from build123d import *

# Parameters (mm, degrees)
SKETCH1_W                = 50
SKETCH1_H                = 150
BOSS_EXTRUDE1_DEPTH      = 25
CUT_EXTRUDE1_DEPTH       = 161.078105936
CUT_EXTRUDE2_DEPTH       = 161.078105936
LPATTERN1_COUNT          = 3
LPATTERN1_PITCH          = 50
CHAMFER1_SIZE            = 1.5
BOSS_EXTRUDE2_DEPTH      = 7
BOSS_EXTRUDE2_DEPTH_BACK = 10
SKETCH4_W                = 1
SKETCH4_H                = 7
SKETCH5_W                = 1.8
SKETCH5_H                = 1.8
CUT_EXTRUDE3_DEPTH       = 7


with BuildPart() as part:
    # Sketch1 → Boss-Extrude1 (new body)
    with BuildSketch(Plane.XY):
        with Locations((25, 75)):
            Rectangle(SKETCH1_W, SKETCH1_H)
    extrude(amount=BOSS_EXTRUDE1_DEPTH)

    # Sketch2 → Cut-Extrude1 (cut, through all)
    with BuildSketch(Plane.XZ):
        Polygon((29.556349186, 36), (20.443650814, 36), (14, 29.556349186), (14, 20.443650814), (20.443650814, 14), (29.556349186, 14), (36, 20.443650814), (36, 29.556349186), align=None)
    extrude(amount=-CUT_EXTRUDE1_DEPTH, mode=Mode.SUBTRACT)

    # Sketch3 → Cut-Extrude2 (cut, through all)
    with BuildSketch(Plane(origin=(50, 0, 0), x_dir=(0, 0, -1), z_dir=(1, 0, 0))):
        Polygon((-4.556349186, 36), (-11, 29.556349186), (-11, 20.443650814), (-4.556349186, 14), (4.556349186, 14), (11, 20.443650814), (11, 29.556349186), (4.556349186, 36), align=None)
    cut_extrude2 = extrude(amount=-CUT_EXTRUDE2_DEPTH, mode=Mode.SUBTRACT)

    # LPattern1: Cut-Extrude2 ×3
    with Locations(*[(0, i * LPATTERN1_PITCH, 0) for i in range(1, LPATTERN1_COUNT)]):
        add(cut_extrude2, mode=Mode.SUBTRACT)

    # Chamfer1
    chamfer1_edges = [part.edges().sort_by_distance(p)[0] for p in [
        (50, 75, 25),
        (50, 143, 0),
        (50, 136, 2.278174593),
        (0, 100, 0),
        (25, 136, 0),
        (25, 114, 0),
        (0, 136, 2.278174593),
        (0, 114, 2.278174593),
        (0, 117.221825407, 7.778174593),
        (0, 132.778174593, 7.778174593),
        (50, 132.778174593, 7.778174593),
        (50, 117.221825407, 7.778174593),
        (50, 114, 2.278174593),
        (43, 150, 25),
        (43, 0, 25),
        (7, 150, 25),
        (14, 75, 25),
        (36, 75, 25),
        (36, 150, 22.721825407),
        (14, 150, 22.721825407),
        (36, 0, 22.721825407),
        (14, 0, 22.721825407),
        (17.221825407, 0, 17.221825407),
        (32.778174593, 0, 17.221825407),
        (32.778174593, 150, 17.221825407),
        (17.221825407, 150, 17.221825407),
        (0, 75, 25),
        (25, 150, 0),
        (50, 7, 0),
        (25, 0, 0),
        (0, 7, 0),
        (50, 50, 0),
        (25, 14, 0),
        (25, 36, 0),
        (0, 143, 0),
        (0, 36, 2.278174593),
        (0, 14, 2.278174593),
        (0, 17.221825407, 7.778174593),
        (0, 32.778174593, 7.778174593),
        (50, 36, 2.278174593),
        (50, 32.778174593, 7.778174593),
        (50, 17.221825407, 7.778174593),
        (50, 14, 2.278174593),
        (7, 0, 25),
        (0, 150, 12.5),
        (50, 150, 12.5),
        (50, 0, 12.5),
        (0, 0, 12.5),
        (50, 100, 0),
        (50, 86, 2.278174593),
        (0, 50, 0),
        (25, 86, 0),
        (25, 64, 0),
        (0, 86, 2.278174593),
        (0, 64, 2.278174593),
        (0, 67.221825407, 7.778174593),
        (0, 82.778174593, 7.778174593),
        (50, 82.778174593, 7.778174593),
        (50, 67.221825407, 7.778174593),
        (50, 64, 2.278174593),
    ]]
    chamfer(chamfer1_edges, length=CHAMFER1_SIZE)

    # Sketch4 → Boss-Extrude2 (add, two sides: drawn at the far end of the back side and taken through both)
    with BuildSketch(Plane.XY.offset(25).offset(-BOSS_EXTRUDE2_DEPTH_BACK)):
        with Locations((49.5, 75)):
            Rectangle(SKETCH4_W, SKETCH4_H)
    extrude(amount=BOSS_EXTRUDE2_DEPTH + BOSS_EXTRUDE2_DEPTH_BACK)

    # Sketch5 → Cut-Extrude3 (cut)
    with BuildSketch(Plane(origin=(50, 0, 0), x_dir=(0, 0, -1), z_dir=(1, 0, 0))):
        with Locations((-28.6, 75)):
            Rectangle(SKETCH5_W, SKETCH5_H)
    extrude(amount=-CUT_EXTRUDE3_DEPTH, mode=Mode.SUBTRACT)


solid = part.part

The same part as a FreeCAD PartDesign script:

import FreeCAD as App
import Part
import Sketcher
from FreeCAD import Vector
Q = App.Units.Quantity


def edges_at(feature, points):
    """Names of the edges that pass closest to the given points."""
    edges = feature.Shape.Edges
    near = lambda p: min(range(len(edges)), key=lambda i: edges[i].distToShape(Part.Vertex(*p))[0])
    return sorted({f"Edge{near(p) + 1}" for p in points})

doc = App.newDocument("Part")
body = doc.addObject("PartDesign::Body", "Body")

# Sketch on XY plane
sketch1 = body.newObject("Sketcher::SketchObject", "Sketch")
sketch1.AttachmentSupport = (doc.getObject("XY_Plane"), [""])
sketch1.MapMode = "FlatFace"
sketch1.addGeometry(Part.LineSegment(Vector(0, 150, 0), Vector(0, 0, 0)), False)
sketch1.addGeometry(Part.LineSegment(Vector(0, 0, 0), Vector(50, 0, 0)), False)
sketch1.addGeometry(Part.LineSegment(Vector(50, 0, 0), Vector(50, 150, 0)), False)
sketch1.addGeometry(Part.LineSegment(Vector(50, 150, 0), Vector(0, 150, 0)), False)
sketch1.addConstraint(Sketcher.Constraint("Coincident", 0, 2, 1, 1))
sketch1.addConstraint(Sketcher.Constraint("Coincident", 1, 2, 2, 1))
sketch1.addConstraint(Sketcher.Constraint("Coincident", 2, 2, 3, 1))
sketch1.addConstraint(Sketcher.Constraint("Coincident", 3, 2, 0, 1))
sketch1.addConstraint(Sketcher.Constraint("Vertical", 0))
sketch1.addConstraint(Sketcher.Constraint("Horizontal", 1))
sketch1.addConstraint(Sketcher.Constraint("Vertical", 2))
sketch1.addConstraint(Sketcher.Constraint("Horizontal", 3))
sketch1.addConstraint(Sketcher.Constraint("Coincident", 0, 2, -1, 1))
sketch1.addConstraint(Sketcher.Constraint("DistanceX", 1, 1, 1, 2, Q("50 mm")))
sketch1.addConstraint(Sketcher.Constraint("DistanceY", 0, 2, 0, 1, Q("150 mm")))
pad1 = body.newObject("PartDesign::Pad", "Pad")
pad1.Profile = sketch1
pad1.Length = 25

# Sketch on XZ plane
sketch2 = body.newObject("Sketcher::SketchObject", "Sketch001")
sketch2.AttachmentSupport = (doc.getObject("XZ_Plane"), [""])
sketch2.MapMode = "FlatFace"
sketch2.addGeometry(Part.LineSegment(Vector(30, 36, 0), Vector(20, 36, 0)), False)
sketch2.addGeometry(Part.LineSegment(Vector(20, 36, 0), Vector(14, 30, 0)), False)
sketch2.addGeometry(Part.LineSegment(Vector(14, 30, 0), Vector(14, 20, 0)), False)
sketch2.addGeometry(Part.LineSegment(Vector(14, 20, 0), Vector(20, 14, 0)), False)
sketch2.addGeometry(Part.LineSegment(Vector(20, 14, 0), Vector(30, 14, 0)), False)
sketch2.addGeometry(Part.LineSegment(Vector(30, 14, 0), Vector(36, 20, 0)), False)
sketch2.addGeometry(Part.LineSegment(Vector(36, 20, 0), Vector(36, 30, 0)), False)
sketch2.addGeometry(Part.LineSegment(Vector(36, 30, 0), Vector(30, 36, 0)), False)
sketch2.addConstraint(Sketcher.Constraint("Coincident", 0, 2, 1, 1))
sketch2.addConstraint(Sketcher.Constraint("Coincident", 1, 2, 2, 1))
sketch2.addConstraint(Sketcher.Constraint("Coincident", 2, 2, 3, 1))
sketch2.addConstraint(Sketcher.Constraint("Coincident", 3, 2, 4, 1))
sketch2.addConstraint(Sketcher.Constraint("Coincident", 4, 2, 5, 1))
sketch2.addConstraint(Sketcher.Constraint("Coincident", 5, 2, 6, 1))
sketch2.addConstraint(Sketcher.Constraint("Coincident", 6, 2, 7, 1))
sketch2.addConstraint(Sketcher.Constraint("Coincident", 7, 2, 0, 1))
sketch2.addConstraint(Sketcher.Constraint("Horizontal", 0))
sketch2.addConstraint(Sketcher.Constraint("Vertical", 2))
sketch2.addConstraint(Sketcher.Constraint("Horizontal", 4))
sketch2.addConstraint(Sketcher.Constraint("Vertical", 6))
sketch2.addConstraint(Sketcher.Constraint("Perpendicular", 1, 3))
sketch2.addConstraint(Sketcher.Constraint("Perpendicular", 3, 5))
sketch2.addConstraint(Sketcher.Constraint("Perpendicular", 5, 7))
sketch2.addConstraint(Sketcher.Constraint("Horizontal", 2, 2, 5, 2))
sketch2.addConstraint(Sketcher.Constraint("Horizontal", 1, 2, 6, 2))
sketch2.addConstraint(Sketcher.Constraint("Vertical", 0, 2, 3, 2))
sketch2.addConstraint(Sketcher.Constraint("Vertical", 4, 2, 7, 2))
sketch2.addConstraint(Sketcher.Constraint("Equal", 4, 2))
sketch2.addConstraint(Sketcher.Constraint("DistanceY", -1, 1, 0, 2, Q("36 mm")))
sketch2.addConstraint(Sketcher.Constraint("DistanceX", -1, 1, 1, 2, Q("14 mm")))
sketch2.addConstraint(Sketcher.Constraint("DistanceY", -1, 1, 3, 2, Q("14 mm")))
sketch2.addConstraint(Sketcher.Constraint("DistanceX", 0, 2, 0, 1, Q("9.112698 mm")))
pocket1 = body.newObject("PartDesign::Pocket", "Pocket")
pocket1.Profile = sketch2
pocket1.Type = "ThroughAll"

# Sketch on YZ plane
sketch3 = body.newObject("Sketcher::SketchObject", "Sketch002")
sketch3.AttachmentSupport = (doc.getObject("YZ_Plane"), [""])
sketch3.MapMode = "FlatFace"
sketch3.AttachmentOffset = App.Placement(Vector(0, 0, 50), App.Rotation())
sketch3.addGeometry(Part.LineSegment(Vector(36, 5, 0), Vector(30, 11, 0)), False)
sketch3.addGeometry(Part.LineSegment(Vector(30, 11, 0), Vector(20, 11, 0)), False)
sketch3.addGeometry(Part.LineSegment(Vector(20, 11, 0), Vector(14, 5, 0)), False)
sketch3.addGeometry(Part.LineSegment(Vector(14, 5, 0), Vector(14, -5, 0)), False)
sketch3.addGeometry(Part.LineSegment(Vector(14, -5, 0), Vector(20, -11, 0)), False)
sketch3.addGeometry(Part.LineSegment(Vector(20, -11, 0), Vector(30, -11, 0)), False)
sketch3.addGeometry(Part.LineSegment(Vector(30, -11, 0), Vector(36, -5, 0)), False)
sketch3.addGeometry(Part.LineSegment(Vector(36, -5, 0), Vector(36, 5, 0)), False)
sketch3.addConstraint(Sketcher.Constraint("Coincident", 0, 2, 1, 1))
sketch3.addConstraint(Sketcher.Constraint("Coincident", 1, 2, 2, 1))
sketch3.addConstraint(Sketcher.Constraint("Coincident", 2, 2, 3, 1))
sketch3.addConstraint(Sketcher.Constraint("Coincident", 3, 2, 4, 1))
sketch3.addConstraint(Sketcher.Constraint("Coincident", 4, 2, 5, 1))
sketch3.addConstraint(Sketcher.Constraint("Coincident", 5, 2, 6, 1))
sketch3.addConstraint(Sketcher.Constraint("Coincident", 6, 2, 7, 1))
sketch3.addConstraint(Sketcher.Constraint("Coincident", 7, 2, 0, 1))
sketch3.addConstraint(Sketcher.Constraint("Horizontal", 1))
sketch3.addConstraint(Sketcher.Constraint("Vertical", 3))
sketch3.addConstraint(Sketcher.Constraint("Horizontal", 5))
sketch3.addConstraint(Sketcher.Constraint("Vertical", 7))
sketch3.addConstraint(Sketcher.Constraint("Symmetric", 1, 2, 4, 2, -1))
sketch3.addConstraint(Sketcher.Constraint("Perpendicular", 0, 2))
sketch3.addConstraint(Sketcher.Constraint("Perpendicular", 2, 4))
sketch3.addConstraint(Sketcher.Constraint("Perpendicular", 4, 6))
sketch3.addConstraint(Sketcher.Constraint("Horizontal", 3, 2, 6, 2))
sketch3.addConstraint(Sketcher.Constraint("Horizontal", 2, 2, 7, 2))
sketch3.addConstraint(Sketcher.Constraint("Vertical", 0, 2, 5, 2))
sketch3.addConstraint(Sketcher.Constraint("Equal", 5, 3))
sketch3.addConstraint(Sketcher.Constraint("DistanceY", -1, 1, 0, 2, Q("11 mm")))
sketch3.addConstraint(Sketcher.Constraint("DistanceX", -1, 1, 2, 2, Q("14 mm")))
sketch3.addConstraint(Sketcher.Constraint("DistanceX", 1, 2, 1, 1, Q("9.112698 mm")))
pocket2 = body.newObject("PartDesign::Pocket", "Pocket001")
pocket2.Profile = sketch3
pocket2.Type = "ThroughAll"
doc.recompute()

linearpattern = body.newObject("PartDesign::LinearPattern", "LinearPattern")
linearpattern.Originals = [pocket2]
linearpattern.Direction = (doc.getObject("Y_Axis"), [""])
linearpattern.Mode = "offset"
linearpattern.Offset = 50
linearpattern.Occurrences = 3
body.Tip = linearpattern
doc.recompute()

chamfer = body.newObject("PartDesign::Chamfer", "Chamfer")
chamfer.Base = (linearpattern, edges_at(linearpattern, [
    (50, 75, 25),
    (50, 143, 0),
    (50, 136, 2.278),
    (0, 100, 0),
    (25, 136, 0),
    (25, 114, 0),
    (0, 136, 2.278),
    (0, 114, 2.278),
    (0, 117.222, 7.778),
    (0, 132.778, 7.778),
    (50, 132.778, 7.778),
    (50, 117.222, 7.778),
    (50, 114, 2.278),
    (43, 150, 25),
    (43, 0, 25),
    (7, 150, 25),
    (14, 75, 25),
    (36, 75, 25),
    (36, 150, 22.722),
    (14, 150, 22.722),
    (36, 0, 22.722),
    (14, 0, 22.722),
    (17.222, 0, 17.222),
    (32.778, 0, 17.222),
    (32.778, 150, 17.222),
    (17.222, 150, 17.222),
    (0, 75, 25),
    (25, 150, 0),
    (50, 7, 0),
    (25, 0, 0),
    (0, 7, 0),
    (50, 50, 0),
    (25, 14, 0),
    (25, 36, 0),
    (0, 143, 0),
    (0, 36, 2.278),
    (0, 14, 2.278),
    (0, 17.222, 7.778),
    (0, 32.778, 7.778),
    (50, 36, 2.278),
    (50, 32.778, 7.778),
    (50, 17.222, 7.778),
    (50, 14, 2.278),
    (7, 0, 25),
    (0, 150, 12.5),
    (50, 150, 12.5),
    (50, 0, 12.5),
    (0, 0, 12.5),
    (50, 100, 0),
    (50, 86, 2.278),
    (0, 50, 0),
    (25, 86, 0),
    (25, 64, 0),
    (0, 86, 2.278),
    (0, 64, 2.278),
    (0, 67.222, 7.778),
    (0, 82.778, 7.778),
    (50, 82.778, 7.778),
    (50, 67.222, 7.778),
    (50, 64, 2.278),
]))
chamfer.Size = 1.5

# Sketch on XY plane
sketch4 = body.newObject("Sketcher::SketchObject", "Sketch003")
sketch4.AttachmentSupport = (doc.getObject("XY_Plane"), [""])
sketch4.MapMode = "FlatFace"
sketch4.AttachmentOffset = App.Placement(Vector(0, 0, 25), App.Rotation())
sketch4.addGeometry(Part.LineSegment(Vector(49, 78.5, 0), Vector(49, 71.5, 0)), False)
sketch4.addGeometry(Part.LineSegment(Vector(49, 71.5, 0), Vector(50, 71.5, 0)), False)
sketch4.addGeometry(Part.LineSegment(Vector(50, 71.5, 0), Vector(50, 78.5, 0)), False)
sketch4.addGeometry(Part.LineSegment(Vector(50, 78.5, 0), Vector(49, 78.5, 0)), False)
sketch4.addConstraint(Sketcher.Constraint("Coincident", 0, 2, 1, 1))
sketch4.addConstraint(Sketcher.Constraint("Coincident", 1, 2, 2, 1))
sketch4.addConstraint(Sketcher.Constraint("Coincident", 2, 2, 3, 1))
sketch4.addConstraint(Sketcher.Constraint("Coincident", 3, 2, 0, 1))
sketch4.addConstraint(Sketcher.Constraint("Vertical", 0))
sketch4.addConstraint(Sketcher.Constraint("Horizontal", 1))
sketch4.addConstraint(Sketcher.Constraint("Vertical", 2))
sketch4.addConstraint(Sketcher.Constraint("Horizontal", 3))
sketch4.addConstraint(Sketcher.Constraint("DistanceX", 1, 1, 1, 2, Q("1 mm")))
sketch4.addConstraint(Sketcher.Constraint("DistanceY", 0, 2, 0, 1, Q("7 mm")))
sketch4.addConstraint(Sketcher.Constraint("DistanceX", -1, 1, 0, 2, Q("49 mm")))
sketch4.addConstraint(Sketcher.Constraint("DistanceY", -1, 1, 0, 2, Q("71.5 mm")))
pad2 = body.newObject("PartDesign::Pad", "Pad001")
pad2.Profile = sketch4
pad2.Type = "TwoLengths"
pad2.Length = 7
pad2.Length2 = 10

# Sketch on YZ plane
sketch5 = body.newObject("Sketcher::SketchObject", "Sketch004")
sketch5.AttachmentSupport = (doc.getObject("YZ_Plane"), [""])
sketch5.MapMode = "FlatFace"
sketch5.AttachmentOffset = App.Placement(Vector(0, 0, 50), App.Rotation())
sketch5.addGeometry(Part.LineSegment(Vector(75.9, 29.5, 0), Vector(74.1, 29.5, 0)), False)
sketch5.addGeometry(Part.LineSegment(Vector(74.1, 29.5, 0), Vector(74.1, 27.7, 0)), False)
sketch5.addGeometry(Part.LineSegment(Vector(74.1, 27.7, 0), Vector(75.9, 27.7, 0)), False)
sketch5.addGeometry(Part.LineSegment(Vector(75.9, 27.7, 0), Vector(75.9, 29.5, 0)), False)
sketch5.addConstraint(Sketcher.Constraint("Coincident", 0, 2, 1, 1))
sketch5.addConstraint(Sketcher.Constraint("Coincident", 1, 2, 2, 1))
sketch5.addConstraint(Sketcher.Constraint("Coincident", 2, 2, 3, 1))
sketch5.addConstraint(Sketcher.Constraint("Coincident", 3, 2, 0, 1))
sketch5.addConstraint(Sketcher.Constraint("Horizontal", 0))
sketch5.addConstraint(Sketcher.Constraint("Vertical", 1))
sketch5.addConstraint(Sketcher.Constraint("Horizontal", 2))
sketch5.addConstraint(Sketcher.Constraint("Vertical", 3))
sketch5.addConstraint(Sketcher.Constraint("Equal", 2, 1))
sketch5.addConstraint(Sketcher.Constraint("DistanceX", 0, 2, 0, 1, Q("1.8 mm")))
sketch5.addConstraint(Sketcher.Constraint("DistanceX", -1, 1, 0, 2, Q("74.1 mm")))
sketch5.addConstraint(Sketcher.Constraint("DistanceY", -1, 1, 0, 2, Q("29.5 mm")))
pocket3 = body.newObject("PartDesign::Pocket", "Pocket002")
pocket3.Profile = sketch5
pocket3.Length = 7

doc.recompute()
